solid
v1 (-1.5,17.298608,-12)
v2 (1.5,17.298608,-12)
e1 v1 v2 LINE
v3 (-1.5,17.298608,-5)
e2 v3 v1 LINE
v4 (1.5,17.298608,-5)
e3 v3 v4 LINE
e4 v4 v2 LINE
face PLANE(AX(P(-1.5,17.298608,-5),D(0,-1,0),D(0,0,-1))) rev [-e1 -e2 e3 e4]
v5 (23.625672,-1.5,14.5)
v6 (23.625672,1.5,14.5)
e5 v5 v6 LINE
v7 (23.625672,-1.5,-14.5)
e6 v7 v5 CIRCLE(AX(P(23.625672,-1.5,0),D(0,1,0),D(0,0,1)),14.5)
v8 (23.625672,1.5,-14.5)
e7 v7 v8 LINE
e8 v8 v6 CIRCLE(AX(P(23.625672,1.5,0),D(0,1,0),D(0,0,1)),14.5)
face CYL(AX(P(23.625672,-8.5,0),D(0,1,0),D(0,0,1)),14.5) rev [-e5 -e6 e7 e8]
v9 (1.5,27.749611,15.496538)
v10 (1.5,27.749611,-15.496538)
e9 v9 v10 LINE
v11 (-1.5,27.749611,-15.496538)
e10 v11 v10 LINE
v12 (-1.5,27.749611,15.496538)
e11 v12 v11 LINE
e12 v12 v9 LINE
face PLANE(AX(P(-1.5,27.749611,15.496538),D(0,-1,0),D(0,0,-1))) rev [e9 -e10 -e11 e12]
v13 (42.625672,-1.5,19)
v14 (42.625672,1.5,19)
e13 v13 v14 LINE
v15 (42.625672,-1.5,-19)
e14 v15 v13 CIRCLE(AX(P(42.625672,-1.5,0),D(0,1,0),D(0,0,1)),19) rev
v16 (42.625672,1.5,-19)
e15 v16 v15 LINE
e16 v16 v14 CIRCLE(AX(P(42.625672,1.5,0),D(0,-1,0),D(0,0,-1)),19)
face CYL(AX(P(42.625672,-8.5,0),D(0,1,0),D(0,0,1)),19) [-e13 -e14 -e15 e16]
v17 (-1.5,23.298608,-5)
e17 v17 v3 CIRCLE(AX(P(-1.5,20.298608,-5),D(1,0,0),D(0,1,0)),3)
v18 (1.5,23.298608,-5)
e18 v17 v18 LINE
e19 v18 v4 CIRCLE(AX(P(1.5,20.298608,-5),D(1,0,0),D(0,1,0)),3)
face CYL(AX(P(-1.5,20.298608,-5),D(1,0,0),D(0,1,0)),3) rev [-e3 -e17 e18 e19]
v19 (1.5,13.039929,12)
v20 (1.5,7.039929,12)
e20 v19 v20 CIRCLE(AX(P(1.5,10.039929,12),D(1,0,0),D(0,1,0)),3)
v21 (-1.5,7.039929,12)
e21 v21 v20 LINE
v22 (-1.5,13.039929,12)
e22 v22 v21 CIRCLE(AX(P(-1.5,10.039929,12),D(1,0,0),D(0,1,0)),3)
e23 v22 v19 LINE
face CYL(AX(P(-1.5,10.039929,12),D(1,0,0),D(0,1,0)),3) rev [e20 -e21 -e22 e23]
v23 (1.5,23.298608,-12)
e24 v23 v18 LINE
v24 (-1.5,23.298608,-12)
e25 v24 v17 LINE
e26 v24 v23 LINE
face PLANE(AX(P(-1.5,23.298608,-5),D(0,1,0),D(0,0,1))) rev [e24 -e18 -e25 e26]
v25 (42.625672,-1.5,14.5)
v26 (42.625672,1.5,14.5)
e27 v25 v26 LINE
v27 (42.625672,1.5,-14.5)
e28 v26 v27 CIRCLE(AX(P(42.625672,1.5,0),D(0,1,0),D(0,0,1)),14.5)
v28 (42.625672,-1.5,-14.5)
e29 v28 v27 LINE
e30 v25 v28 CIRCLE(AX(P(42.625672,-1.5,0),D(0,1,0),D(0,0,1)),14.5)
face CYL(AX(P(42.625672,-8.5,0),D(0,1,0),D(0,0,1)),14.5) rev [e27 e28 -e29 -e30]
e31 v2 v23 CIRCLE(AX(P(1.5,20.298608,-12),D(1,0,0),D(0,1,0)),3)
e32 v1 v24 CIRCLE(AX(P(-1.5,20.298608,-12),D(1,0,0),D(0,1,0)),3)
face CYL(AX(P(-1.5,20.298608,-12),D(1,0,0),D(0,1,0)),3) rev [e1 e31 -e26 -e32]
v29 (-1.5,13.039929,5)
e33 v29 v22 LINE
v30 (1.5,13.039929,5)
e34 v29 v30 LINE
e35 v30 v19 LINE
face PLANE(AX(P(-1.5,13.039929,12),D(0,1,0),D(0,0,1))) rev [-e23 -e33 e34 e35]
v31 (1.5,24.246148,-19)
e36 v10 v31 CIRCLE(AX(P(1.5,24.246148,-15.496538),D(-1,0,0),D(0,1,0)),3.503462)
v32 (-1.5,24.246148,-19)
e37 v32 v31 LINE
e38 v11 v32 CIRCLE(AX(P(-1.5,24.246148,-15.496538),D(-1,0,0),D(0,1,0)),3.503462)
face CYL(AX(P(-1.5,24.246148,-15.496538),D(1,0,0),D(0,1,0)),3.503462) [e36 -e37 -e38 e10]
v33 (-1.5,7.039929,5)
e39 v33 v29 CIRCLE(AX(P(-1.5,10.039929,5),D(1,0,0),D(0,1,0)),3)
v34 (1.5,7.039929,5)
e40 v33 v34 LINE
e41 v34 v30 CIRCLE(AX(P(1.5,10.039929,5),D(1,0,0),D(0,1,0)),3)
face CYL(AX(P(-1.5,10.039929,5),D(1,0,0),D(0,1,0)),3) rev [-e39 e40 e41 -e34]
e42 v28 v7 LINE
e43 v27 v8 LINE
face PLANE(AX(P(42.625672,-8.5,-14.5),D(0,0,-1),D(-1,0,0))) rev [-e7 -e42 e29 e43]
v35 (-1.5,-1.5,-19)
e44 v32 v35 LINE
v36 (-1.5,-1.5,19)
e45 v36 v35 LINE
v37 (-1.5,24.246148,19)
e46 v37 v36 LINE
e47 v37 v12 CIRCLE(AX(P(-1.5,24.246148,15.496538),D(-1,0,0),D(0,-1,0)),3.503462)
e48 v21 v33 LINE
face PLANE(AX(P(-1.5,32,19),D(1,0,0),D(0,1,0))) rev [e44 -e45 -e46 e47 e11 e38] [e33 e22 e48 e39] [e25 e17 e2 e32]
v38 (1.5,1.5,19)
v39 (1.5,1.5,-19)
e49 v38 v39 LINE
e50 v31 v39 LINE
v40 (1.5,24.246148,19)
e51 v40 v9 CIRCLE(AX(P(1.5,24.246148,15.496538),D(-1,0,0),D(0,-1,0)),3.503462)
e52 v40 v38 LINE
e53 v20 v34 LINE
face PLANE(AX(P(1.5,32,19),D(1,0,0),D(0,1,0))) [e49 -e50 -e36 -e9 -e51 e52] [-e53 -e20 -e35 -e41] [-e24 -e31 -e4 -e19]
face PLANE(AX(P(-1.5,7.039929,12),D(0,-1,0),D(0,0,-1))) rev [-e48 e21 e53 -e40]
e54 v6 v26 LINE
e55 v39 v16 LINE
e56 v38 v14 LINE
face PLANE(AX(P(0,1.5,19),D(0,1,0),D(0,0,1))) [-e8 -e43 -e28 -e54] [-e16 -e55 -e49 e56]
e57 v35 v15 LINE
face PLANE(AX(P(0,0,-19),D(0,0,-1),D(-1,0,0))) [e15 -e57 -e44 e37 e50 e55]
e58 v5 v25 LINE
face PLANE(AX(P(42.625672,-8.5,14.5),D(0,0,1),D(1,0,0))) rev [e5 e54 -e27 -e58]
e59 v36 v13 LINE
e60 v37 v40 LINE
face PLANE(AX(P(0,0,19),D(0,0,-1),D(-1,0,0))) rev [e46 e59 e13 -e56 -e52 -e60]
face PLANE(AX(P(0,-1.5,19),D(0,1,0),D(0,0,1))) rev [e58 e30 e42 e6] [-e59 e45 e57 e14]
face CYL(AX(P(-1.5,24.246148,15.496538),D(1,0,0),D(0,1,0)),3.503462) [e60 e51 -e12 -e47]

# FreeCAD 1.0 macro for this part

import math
import FreeCAD as App
import Part
import Sketcher

V = App.Vector
Q = App.Units.Quantity


def add_polygon(sketch, points):
    """Adds a closed chain of lines whose ends are joined by coincident constraints."""
    first, n = sketch.GeometryCount, len(points)
    for a, b in zip(points, points[1:] + points[:1]):
        sketch.addGeometry(Part.LineSegment(App.Vector(*a, 0), App.Vector(*b, 0)), False)
    for i in range(n):
        sketch.addConstraint(Sketcher.Constraint("Coincident", first + i, 2, first + (i + 1) % n, 1))

doc = App.newDocument("Part")
body = doc.addObject("PartDesign::Body", "Body")

# Sketch on XY plane
sketch1 = doc.addObject("Sketcher::SketchObject", "Sketch")
body.addObject(sketch1)
sketch1.AttachmentSupport = (doc.XY_Plane, [""])
sketch1.MapMode = "FlatFace"
add_polygon(sketch1, [(-1.5, 32), (-1.5, -1.5), (63, -1.5), (63, 1.5), (1.5, 1.5), (1.5, 32)])  # lines 0-5
sketch1.addConstraint([
    Sketcher.Constraint("Vertical", 0),
    Sketcher.Constraint("Horizontal", 1),
    Sketcher.Constraint("Vertical", 2),
    Sketcher.Constraint("Horizontal", 3),
    Sketcher.Constraint("Vertical", 4),
    Sketcher.Constraint("Horizontal", 5),
    Sketcher.Constraint("Symmetric", 0, 2, 3, 2, -1, 1),
    Sketcher.Constraint("Equal", 5, 2),
    Sketcher.Constraint("DistanceX", 5, 2, 5, 1, Q("3 mm")),
    Sketcher.Constraint("DistanceX", 1, 1, 1, 2, Q("64.5 mm")),
    Sketcher.Constraint("DistanceY", 0, 2, 0, 1, Q("33.5 mm")),
])
pad1 = doc.addObject("PartDesign::Pad", "Pad")
body.addObject(pad1)
pad1.Profile = sketch1
pad1.Length = 38
pad1.Midplane = True

# Sketch on YZ plane
sketch2 = doc.addObject("Sketcher::SketchObject", "Sketch001")
body.addObject(sketch2)
sketch2.AttachmentSupport = (doc.YZ_Plane, [""])
sketch2.MapMode = "FlatFace"
sketch2.AttachmentOffset = App.Placement(V(0, 0, 1.5), App.Rotation())
sketch2.addGeometry([
    Part.LineSegment(V(23.298608, -12, 0), V(23.298608, -5, 0)),  # 0
    Part.ArcOfCircle(Part.Circle(V(20.298608, -5, 0), V(0, 0, 1), 3), math.radians(0), math.radians(180)),  # 1
    Part.LineSegment(V(17.298608, -5, 0), V(17.298608, -12, 0)),  # 2
    Part.ArcOfCircle(Part.Circle(V(20.298608, -12, 0), V(0, 0, 1), 3), math.radians(180), math.radians(360)),  # 3
    Part.LineSegment(V(13.039929, 5, 0), V(13.039929, 12, 0)),  # 4
    Part.ArcOfCircle(Part.Circle(V(10.039929, 12, 0), V(0, 0, 1), 3), math.radians(0), math.radians(180)),  # 5
    Part.LineSegment(V(7.039929, 12, 0), V(7.039929, 5, 0)),  # 6
    Part.ArcOfCircle(Part.Circle(V(10.039929, 5, 0), V(0, 0, 1), 3), math.radians(180), math.radians(360)),  # 7
    Part.LineSegment(V(27.749611, 15.496538, 0), V(27.749611, -15.496538, 0)),  # 8
    Part.ArcOfCircle(Part.Circle(V(24.246148, -15.496538, 0), V(0, 0, 1), 3.503462), math.radians(-90), math.radians(0)),  # 9
    Part.LineSegment(V(24.246148, -19, 0), V(32, -19, 0)),  # 10
    Part.LineSegment(V(32, -19, 0), V(32, 19, 0)),  # 11
    Part.LineSegment(V(32, 19, 0), V(24.246148, 19, 0)),  # 12
    Part.ArcOfCircle(Part.Circle(V(24.246148, 15.496538, 0), V(0, 0, 1), 3.503462), math.radians(0), math.radians(90)),  # 13
], False)
sketch2.addConstraint([
    Sketcher.Constraint("Tangent", 0, 2, 1, 1),
    Sketcher.Constraint("Tangent", 1, 2, 2, 1),
    Sketcher.Constraint("Tangent", 2, 2, 3, 1),
    Sketcher.Constraint("Tangent", 3, 2, 0, 1),
    Sketcher.Constraint("Tangent", 4, 2, 5, 1),
    Sketcher.Constraint("Tangent", 5, 2, 6, 1),
    Sketcher.Constraint("Tangent", 6, 2, 7, 1),
    Sketcher.Constraint("Tangent", 7, 2, 4, 1),
    Sketcher.Constraint("Tangent", 8, 2, 9, 2),
    Sketcher.Constraint("Tangent", 9, 1, 10, 1),
    Sketcher.Constraint("Coincident", 10, 2, 11, 1),
    Sketcher.Constraint("Coincident", 11, 2, 12, 1),
    Sketcher.Constraint("Tangent", 12, 2, 13, 2),
    Sketcher.Constraint("Tangent", 13, 1, 8, 1),
    Sketcher.Constraint("Vertical", 0),
    Sketcher.Constraint("Vertical", 2),
    Sketcher.Constraint("Vertical", 4),
    Sketcher.Constraint("Vertical", 6),
    Sketcher.Constraint("Vertical", 8),
    Sketcher.Constraint("Horizontal", 10),
    Sketcher.Constraint("Vertical", 11),
    Sketcher.Constraint("Horizontal", 12),
    Sketcher.Constraint("Equal", 3, 5),
    Sketcher.Constraint("Equal", 9, 13),
    Sketcher.Constraint("Equal", 2, 4),
    Sketcher.Constraint("Radius", 1, Q("3 mm")),
    Sketcher.Constraint("DistanceY", 0, 1, 0, 2, Q("7 mm")),
    Sketcher.Constraint("DistanceY", 11, 1, 11, 2, Q("38 mm")),
    Sketcher.Constraint("DistanceY", 1, 3, -1, 1, Q("5 mm")),
    Sketcher.Constraint("DistanceY", -1, 1, 5, 3, Q("12 mm")),
    Sketcher.Constraint("DistanceY", 9, 1, -1, 1, Q("19 mm")),
    Sketcher.Constraint("DistanceX", -1, 1, 10, 2, Q("32 mm")),
    Sketcher.Constraint("Radius", 9, Q("3.503462 mm")),
    Sketcher.Constraint("DistanceX", 10, 1, 10, 2, Q("7.753852 mm")),
    Sketcher.Constraint("DistanceX", -1, 1, 1, 3, Q("20.298608 mm")),
    Sketcher.Constraint("DistanceX", -1, 1, 5, 3, Q("10.039929 mm")),
])
pocket1 = doc.addObject("PartDesign::Pocket", "Pocket")
body.addObject(pocket1)
pocket1.Profile = sketch2
pocket1.Type = "ThroughAll"

# Sketch on XZ plane
sketch3 = doc.addObject("Sketcher::SketchObject", "Sketch002")
body.addObject(sketch3)
sketch3.AttachmentSupport = (doc.XZ_Plane, [""])
sketch3.MapMode = "FlatFace"
sketch3.AttachmentOffset = App.Placement(V(0, 0, -1.5), App.Rotation())
sketch3.addGeometry([
    Part.LineSegment(V(23.625672, 14.5, 0), V(42.625672, 14.5, 0)),  # 0
    Part.ArcOfCircle(Part.Circle(V(42.625672, 0, 0), V(0, 0, 1), 14.5), math.radians(-90), math.radians(90)),  # 1
    Part.LineSegment(V(42.625672, -14.5, 0), V(23.625672, -14.5, 0)),  # 2
    Part.ArcOfCircle(Part.Circle(V(23.625672, 0, 0), V(0, 0, 1), 14.5), math.radians(90), math.radians(270)),  # 3
    Part.LineSegment(V(63, -19, 0), V(42.625672, -19, 0)),  # 4
    Part.ArcOfCircle(Part.Circle(V(42.625672, 0, 0), V(0, 0, 1), 19), math.radians(-90), math.radians(90)),  # 5
    Part.LineSegment(V(42.625672, 19, 0), V(63, 19, 0)),  # 6
    Part.LineSegment(V(63, 19, 0), V(63, -19, 0)),  # 7
], False)
sketch3.addConstraint([
    Sketcher.Constraint("Tangent", 0, 2, 1, 2),
    Sketcher.Constraint("Tangent", 1, 1, 2, 1),
    Sketcher.Constraint("Tangent", 2, 2, 3, 2),
    Sketcher.Constraint("Tangent", 3, 1, 0, 1),
    Sketcher.Constraint("Tangent", 4, 2, 5, 1),
    Sketcher.Constraint("Tangent", 5, 2, 6, 1),
    Sketcher.Constraint("Coincident", 6, 2, 7, 1),
    Sketcher.Constraint("Coincident", 7, 2, 4, 1),
    Sketcher.Constraint("Horizontal", 0),
    Sketcher.Constraint("Horizontal", 2),
    Sketcher.Constraint("Horizontal", 4),
    Sketcher.Constraint("Horizontal", 6),
    Sketcher.Constraint("Vertical", 7),
    Sketcher.Constraint("Coincident", 5, 3, 1, 3),
    Sketcher.Constraint("PointOnObject", 1, 3, -1),
    Sketcher.Constraint("Radius", 5, Q("19 mm")),
    Sketcher.Constraint("Radius", 1, Q("14.5 mm")),
    Sketcher.Constraint("DistanceX", 0, 1, 0, 2, Q("19 mm")),
    Sketcher.Constraint("DistanceX", -1, 1, 6, 2, Q("63 mm")),
    Sketcher.Constraint("DistanceX", 4, 2, 4, 1, Q("20.374328 mm")),
])
pocket2 = doc.addObject("PartDesign::Pocket", "Pocket001")
body.addObject(pocket2)
pocket2.Profile = sketch3
pocket2.Length = 10
pocket2.Reversed = True

doc.recompute()
